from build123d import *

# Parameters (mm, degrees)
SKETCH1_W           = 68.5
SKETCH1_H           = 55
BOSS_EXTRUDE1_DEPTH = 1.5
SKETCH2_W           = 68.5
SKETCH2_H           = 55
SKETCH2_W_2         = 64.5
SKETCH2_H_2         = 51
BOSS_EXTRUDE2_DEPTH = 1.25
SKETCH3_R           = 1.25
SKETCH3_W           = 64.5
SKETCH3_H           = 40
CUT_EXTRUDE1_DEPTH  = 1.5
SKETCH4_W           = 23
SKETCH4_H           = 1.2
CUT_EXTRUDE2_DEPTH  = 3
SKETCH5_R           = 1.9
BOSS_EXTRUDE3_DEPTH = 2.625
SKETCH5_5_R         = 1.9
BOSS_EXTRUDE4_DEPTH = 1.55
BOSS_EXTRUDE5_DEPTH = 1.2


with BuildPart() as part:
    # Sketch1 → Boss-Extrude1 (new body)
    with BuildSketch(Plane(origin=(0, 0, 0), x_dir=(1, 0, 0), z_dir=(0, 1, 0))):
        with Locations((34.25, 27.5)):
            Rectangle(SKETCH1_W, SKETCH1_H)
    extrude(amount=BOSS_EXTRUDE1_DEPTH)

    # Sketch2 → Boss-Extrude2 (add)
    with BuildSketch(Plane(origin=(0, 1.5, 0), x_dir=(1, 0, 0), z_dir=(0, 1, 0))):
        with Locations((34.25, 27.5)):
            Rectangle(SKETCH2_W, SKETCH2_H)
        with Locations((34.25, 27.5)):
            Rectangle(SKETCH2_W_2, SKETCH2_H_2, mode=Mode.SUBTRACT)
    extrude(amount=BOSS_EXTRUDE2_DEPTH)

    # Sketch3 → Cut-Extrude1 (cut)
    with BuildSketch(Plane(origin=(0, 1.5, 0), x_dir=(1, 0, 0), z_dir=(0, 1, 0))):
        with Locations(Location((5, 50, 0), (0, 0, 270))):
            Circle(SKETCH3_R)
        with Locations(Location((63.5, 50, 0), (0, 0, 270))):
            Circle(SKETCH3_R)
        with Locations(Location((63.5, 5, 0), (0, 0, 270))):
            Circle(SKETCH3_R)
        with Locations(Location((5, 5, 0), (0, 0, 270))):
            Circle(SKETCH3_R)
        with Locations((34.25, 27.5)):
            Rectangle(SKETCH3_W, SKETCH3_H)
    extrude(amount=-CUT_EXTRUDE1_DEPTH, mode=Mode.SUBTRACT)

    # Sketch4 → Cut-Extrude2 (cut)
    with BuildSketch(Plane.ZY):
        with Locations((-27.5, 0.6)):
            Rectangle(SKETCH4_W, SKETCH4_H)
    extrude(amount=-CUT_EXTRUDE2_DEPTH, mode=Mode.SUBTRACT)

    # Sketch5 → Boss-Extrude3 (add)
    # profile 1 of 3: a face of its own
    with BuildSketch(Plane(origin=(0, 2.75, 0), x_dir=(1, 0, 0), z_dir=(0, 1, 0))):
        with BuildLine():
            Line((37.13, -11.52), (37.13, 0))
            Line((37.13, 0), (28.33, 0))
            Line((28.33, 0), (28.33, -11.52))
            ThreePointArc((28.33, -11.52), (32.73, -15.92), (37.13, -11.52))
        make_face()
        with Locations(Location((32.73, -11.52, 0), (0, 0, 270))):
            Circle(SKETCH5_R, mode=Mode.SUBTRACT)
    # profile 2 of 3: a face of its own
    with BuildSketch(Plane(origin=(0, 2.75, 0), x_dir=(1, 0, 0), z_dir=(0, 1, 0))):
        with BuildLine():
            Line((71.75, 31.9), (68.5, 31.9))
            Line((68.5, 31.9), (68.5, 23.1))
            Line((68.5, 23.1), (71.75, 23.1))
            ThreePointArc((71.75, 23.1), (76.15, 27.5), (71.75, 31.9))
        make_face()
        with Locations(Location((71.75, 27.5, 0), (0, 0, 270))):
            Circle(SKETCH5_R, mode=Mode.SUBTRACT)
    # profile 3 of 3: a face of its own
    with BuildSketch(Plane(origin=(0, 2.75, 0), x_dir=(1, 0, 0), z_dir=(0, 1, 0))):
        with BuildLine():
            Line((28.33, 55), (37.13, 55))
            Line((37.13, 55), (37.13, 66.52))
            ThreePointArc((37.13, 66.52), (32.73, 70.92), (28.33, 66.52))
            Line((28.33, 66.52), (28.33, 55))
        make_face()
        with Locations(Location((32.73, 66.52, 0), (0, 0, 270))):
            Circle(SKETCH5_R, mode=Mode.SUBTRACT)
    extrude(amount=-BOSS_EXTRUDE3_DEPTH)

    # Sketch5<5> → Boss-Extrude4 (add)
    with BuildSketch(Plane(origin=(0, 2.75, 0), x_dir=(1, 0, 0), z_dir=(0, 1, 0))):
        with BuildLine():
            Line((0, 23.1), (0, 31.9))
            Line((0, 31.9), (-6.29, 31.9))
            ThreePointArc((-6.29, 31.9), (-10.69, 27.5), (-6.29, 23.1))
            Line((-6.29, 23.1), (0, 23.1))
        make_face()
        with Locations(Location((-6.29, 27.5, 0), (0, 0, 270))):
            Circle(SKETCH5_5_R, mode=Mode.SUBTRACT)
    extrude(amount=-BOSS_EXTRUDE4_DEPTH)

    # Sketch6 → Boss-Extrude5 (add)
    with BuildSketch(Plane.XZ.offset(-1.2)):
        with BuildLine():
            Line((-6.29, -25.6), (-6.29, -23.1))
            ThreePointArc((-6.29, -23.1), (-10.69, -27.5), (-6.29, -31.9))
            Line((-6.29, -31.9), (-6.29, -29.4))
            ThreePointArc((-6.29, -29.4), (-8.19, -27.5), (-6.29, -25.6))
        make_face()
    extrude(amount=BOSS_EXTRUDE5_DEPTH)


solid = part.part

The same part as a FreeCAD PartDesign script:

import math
import FreeCAD as App
import Part
import Sketcher

V = App.Vector


def add_polygon(sketch, points):
    """Adds a closed chain of lines whose ends are joined by coincident constraints."""
    first, n = sketch.GeometryCount, len(points)
    for a, b in zip(points, points[1:] + points[:1]):
        sketch.addGeometry(Part.LineSegment(App.Vector(*a, 0), App.Vector(*b, 0)), False)
    for i in range(n):
        sketch.addConstraint(Sketcher.Constraint("Coincident", first + i, 2, first + (i + 1) % n, 1))

doc = App.newDocument("Part")
body = doc.addObject("PartDesign::Body", "Body")

sketch1 = body.newObject("Sketcher::SketchObject", "Sketch")
sketch1.AttachmentSupport = (doc.getObject("XZ_Plane"), [""])
sketch1.MapMode = "FlatFace"
add_polygon(sketch1, [(0, -55), (0, 0), (68, 0), (68, -55)])
sketch1.addConstraint([
    Sketcher.Constraint("Vertical", 0),
    Sketcher.Constraint("Horizontal", 1),
    Sketcher.Constraint("Vertical", 2),
    Sketcher.Constraint("Horizontal", 3),
    Sketcher.Constraint("Coincident", 0, 2, -1, 1),
    Sketcher.Constraint("DistanceY", 0, 1, 0, 2, 55.0),
    Sketcher.Constraint("DistanceX", 1, 1, 1, 2, 68.5),
])
pad1 = body.newObject("PartDesign::Pad", "Pad")
pad1.Profile = sketch1
pad1.Length = 1.5
pad1.Reversed = True

sketch2 = body.newObject("Sketcher::SketchObject", "Sketch001")
sketch2.AttachmentSupport = (doc.getObject("XZ_Plane"), [""])
sketch2.MapMode = "FlatFace"
sketch2.AttachmentOffset = App.Placement(V(0, 0, -1.5), App.Rotation())
add_polygon(sketch2, [(0, -55), (0, 0), (68, 0), (68, -55)])
add_polygon(sketch2, [(66, -2), (2, -2), (2, -53), (66, -53)])
sketch2.addConstraint([
    Sketcher.Constraint("Vertical", 0),
    Sketcher.Constraint("Horizontal", 1),
    Sketcher.Constraint("Vertical", 2),
    Sketcher.Constraint("Horizontal", 3),
    Sketcher.Constraint("Horizontal", 4),
    Sketcher.Constraint("Vertical", 5),
    Sketcher.Constraint("Horizontal", 6),
    Sketcher.Constraint("Vertical", 7),
    Sketcher.Constraint("Coincident", 0, 2, -1, 1),
    Sketcher.Constraint("DistanceY", 0, 1, 0, 2, 55.0),
    Sketcher.Constraint("DistanceY", 5, 2, 5, 1, 51.0),
    Sketcher.Constraint("DistanceX", 1, 1, 1, 2, 68.5),
    Sketcher.Constraint("DistanceX", 4, 2, 4, 1, 64.5),
    Sketcher.Constraint("DistanceX", -1, 1, 4, 2, 2.0),
    Sketcher.Constraint("DistanceY", 4, 2, -1, 1, 2.0),
])
pad2 = body.newObject("PartDesign::Pad", "Pad001")
pad2.Profile = sketch2
pad2.Length = 1.25
pad2.Reversed = True

sketch3 = body.newObject("Sketcher::SketchObject", "Sketch002")
sketch3.AttachmentSupport = (doc.getObject("XZ_Plane"), [""])
sketch3.MapMode = "FlatFace"
sketch3.AttachmentOffset = App.Placement(V(0, 0, -1.5), App.Rotation())
sketch3.addGeometry(Part.Circle(V(5, -50, 0), V(0, 0, 1), 1.2), False)
sketch3.addGeometry(Part.Circle(V(63.5, -50, 0), V(0, 0, 1), 1.2), False)
sketch3.addGeometry(Part.Circle(V(63.5, -5, 0), V(0, 0, 1), 1.2), False)
sketch3.addGeometry(Part.Circle(V(5, -5, 0), V(0, 0, 1), 1.2), False)
add_polygon(sketch3, [(2, -47.5), (2, -7.5), (66.5, -7.5), (66.5, -47.5)])
sketch3.addConstraint([
    Sketcher.Constraint("Vertical", 4),
    Sketcher.Constraint("Horizontal", 5),
    Sketcher.Constraint("Vertical", 6),
    Sketcher.Constraint("Horizontal", 7),
    Sketcher.Constraint("Equal", 0, 1),
    Sketcher.Constraint("Equal", 1, 2),
    Sketcher.Constraint("Equal", 2, 3),
    Sketcher.Constraint("Horizontal", 0, 3, 1, 3),
    Sketcher.Constraint("Horizontal", 2, 3, 3, 3),
    Sketcher.Constraint("Vertical", 1, 3, 2, 3),
    Sketcher.Constraint("Vertical", 0, 3, 3, 3),
    Sketcher.Constraint("Diameter", 0, 2.5),
    Sketcher.Constraint("DistanceY", 4, 1, 4, 2, 40.0),
    Sketcher.Constraint("DistanceX", 5, 1, 5, 2, 64.5),
    Sketcher.Constraint("DistanceX", -1, 1, 0, 3, 5.0),
    Sketcher.Constraint("DistanceY", 0, 3, -1, 1, 50.0),
    Sketcher.Constraint("DistanceY", 2, 3, -1, 1, 5.0),
    Sketcher.Constraint("DistanceX", -1, 1, 4, 2, 2.0),
    Sketcher.Constraint("DistanceX", 2, 3, 5, 2, 3.0),
    Sketcher.Constraint("DistanceY", 4, 2, -1, 1, 7.5),
])
pocket1 = body.newObject("PartDesign::Pocket", "Pocket")
pocket1.Profile = sketch3
pocket1.Length = 1.5
pocket1.Reversed = True

sketch4 = body.newObject("Sketcher::SketchObject", "Sketch003")
sketch4.AttachmentSupport = (doc.getObject("YZ_Plane"), [""])
sketch4.MapMode = "FlatFace"
add_polygon(sketch4, [(1.2, -39), (0, -39), (0, -16), (1.2, -16)])
sketch4.addConstraint([
    Sketcher.Constraint("Horizontal", 0),
    Sketcher.Constraint("Vertical", 1),
    Sketcher.Constraint("Horizontal", 2),
    Sketcher.Constraint("Vertical", 3),
    Sketcher.Constraint("PointOnObject", 0, 2, -2),
    Sketcher.Constraint("DistanceY", 1, 1, 1, 2, 23.0),
    Sketcher.Constraint("DistanceX", 0, 2, 0, 1, 1.2),
    Sketcher.Constraint("DistanceY", 0, 2, -1, 1, 39.0),
])
pocket2 = body.newObject("PartDesign::Pocket", "Pocket001")
pocket2.Profile = sketch4
pocket2.Length = 3
pocket2.Reversed = True

sketch5 = body.newObject("Sketcher::SketchObject", "Sketch004")
sketch5.AttachmentSupport = (doc.getObject("XZ_Plane"), [""])
sketch5.MapMode = "FlatFace"
sketch5.AttachmentOffset = App.Placement(V(0, 0, -2.75), App.Rotation())
sketch5.addGeometry([
    Part.LineSegment(V(37.1, 11.5, 0), V(37.1, 0, 0)),
    Part.LineSegment(V(37.1, 0, 0), V(28.3, 0, 0)),
    Part.LineSegment(V(28.3, 0, 0), V(28.3, 11.5, 0)),
    Part.ArcOfCircle(Part.Circle(V(32.7, 11.5, 0), V(0, 0, 1), 4.4), math.radians(0), math.radians(180)),
    Part.Circle(V(32.7, 11.5, 0), V(0, 0, 1), 1.9),
    Part.LineSegment(V(71.8, -31.9, 0), V(68.5, -31.9, 0)),
    Part.LineSegment(V(68.5, -31.9, 0), V(68.5, -23.1, 0)),
    Part.LineSegment(V(68.5, -23.1, 0), V(71.8, -23.1, 0)),
    Part.ArcOfCircle(Part.Circle(V(71.8, -27.5, 0), V(0, 0, 1), 4.4), math.radians(-90), math.radians(90)),
    Part.Circle(V(71.8, -27.5, 0), V(0, 0, 1), 1.9),
    Part.LineSegment(V(28.3, -55, 0), V(37.1, -55, 0)),
    Part.LineSegment(V(37.1, -55, 0), V(37.1, -66.5, 0)),
    Part.ArcOfCircle(Part.Circle(V(32.7, -66.5, 0), V(0, 0, 1), 4.4), math.radians(180), math.radians(360)),
    Part.LineSegment(V(28.3, -66.5, 0), V(28.3, -55, 0)),
    Part.Circle(V(32.7, -66.5, 0), V(0, 0, 1), 1.9),
], False)
sketch5.addConstraint([
    Sketcher.Constraint("Coincident", 0, 2, 1, 1),
    Sketcher.Constraint("Coincident", 1, 2, 2, 1),
    Sketcher.Constraint("Tangent", 2, 2, 3, 2),
    Sketcher.Constraint("Tangent", 3, 1, 0, 1),
    Sketcher.Constraint("Coincident", 5, 2, 6, 1),
    Sketcher.Constraint("Coincident", 6, 2, 7, 1),
    Sketcher.Constraint("Tangent", 7, 2, 8, 2),
    Sketcher.Constraint("Tangent", 8, 1, 5, 1),
    Sketcher.Constraint("Coincident", 10, 2, 11, 1),
    Sketcher.Constraint("Tangent", 11, 2, 12, 2),
    Sketcher.Constraint("Tangent", 12, 1, 13, 1),
    Sketcher.Constraint("Coincident", 13, 2, 10, 1),
    Sketcher.Constraint("Vertical", 0),
    Sketcher.Constraint("Horizontal", 1),
    Sketcher.Constraint("Vertical", 2),
    Sketcher.Constraint("Horizontal", 5),
    Sketcher.Constraint("Vertical", 6),
    Sketcher.Constraint("Horizontal", 7),
    Sketcher.Constraint("Horizontal", 10),
    Sketcher.Constraint("Vertical", 11),
    Sketcher.Constraint("Vertical", 13),
    Sketcher.Constraint("Coincident", 4, 3, 3, 3),
    Sketcher.Constraint("Coincident", 9, 3, 8, 3),
    Sketcher.Constraint("Coincident", 14, 3, 12, 3),
    Sketcher.Constraint("Equal", 3, 8),
    Sketcher.Constraint("Equal", 4, 9),
    Sketcher.Constraint("Equal", 8, 12),
    Sketcher.Constraint("Equal", 9, 14),
    Sketcher.Constraint("PointOnObject", 0, 2, -1),
    Sketcher.Constraint("Vertical", 4, 3, 12, 3),
    Sketcher.Constraint("Equal", 2, 11),
    Sketcher.Constraint("Diameter", 4, 3.8),
    Sketcher.Constraint("Radius", 3, 4.4),
    Sketcher.Constraint("DistanceY", 10, 2, -1, 1, 55.0),
    Sketcher.Constraint("DistanceX", 5, 2, 5, 1, 3.25),
    Sketcher.Constraint("DistanceY", 0, 2, 0, 1, 11.52),
    Sketcher.Constraint("DistanceY", 8, 3, -1, 1, 27.5),
    Sketcher.Constraint("DistanceX", -1, 1, 5, 2, 68.5),
    Sketcher.Constraint("DistanceX", -1, 1, 3, 3, 32.73),
])
pad3 = body.newObject("PartDesign::Pad", "Pad002")
pad3.Profile = sketch5
pad3.Length = 2.625

sketch6 = body.newObject("Sketcher::SketchObject", "Sketch005")
sketch6.AttachmentSupport = (doc.getObject("XZ_Plane"), [""])
sketch6.MapMode = "FlatFace"
sketch6.AttachmentOffset = App.Placement(V(0, 0, -2.75), App.Rotation())
sketch6.addGeometry([
    Part.LineSegment(V(0, -23.1, 0), V(0, -31.9, 0)),
    Part.LineSegment(V(0, -31.9, 0), V(-6.3, -31.9, 0)),
    Part.ArcOfCircle(Part.Circle(V(-6.3, -27.5, 0), V(0, 0, 1), 4.4), math.radians(90), math.radians(270)),
    Part.LineSegment(V(-6.3, -23.1, 0), V(0, -23.1, 0)),
    Part.Circle(V(-6.3, -27.5, 0), V(0, 0, 1), 1.9),
], False)
sketch6.addConstraint([
    Sketcher.Constraint("Coincident", 0, 2, 1, 1),
    Sketcher.Constraint("Tangent", 1, 2, 2, 2),
    Sketcher.Constraint("Tangent", 2, 1, 3, 1),
    Sketcher.Constraint("Coincident", 3, 2, 0, 1),
    Sketcher.Constraint("Vertical", 0),
    Sketcher.Constraint("Horizontal", 1),
    Sketcher.Constraint("Horizontal", 3),
    Sketcher.Constraint("Coincident", 4, 3, 2, 3),
    Sketcher.Constraint("PointOnObject", 0, 2, -2),
    Sketcher.Constraint("Diameter", 4, 3.8),
    Sketcher.Constraint("Radius", 2, 4.4),
    Sketcher.Constraint("DistanceX", 1, 2, 1, 1, 6.29),
    Sketcher.Constraint("DistanceY", 2, 3, -1, 1, 27.5),
])
pad4 = body.newObject("PartDesign::Pad", "Pad003")
pad4.Profile = sketch6
pad4.Length = 1.55

sketch7 = body.newObject("Sketcher::SketchObject", "Sketch006")
sketch7.AttachmentSupport = (doc.getObject("XZ_Plane"), [""])
sketch7.MapMode = "FlatFace"
sketch7.AttachmentOffset = App.Placement(V(0, 0, -1.2), App.Rotation())
sketch7.addGeometry([
    Part.LineSegment(V(-6.3, -25.6, 0), V(-6.3, -23.1, 0)),
    Part.ArcOfCircle(Part.Circle(V(-6.3, -27.5, 0), V(0, 0, 1), 4.4), math.radians(90), math.radians(270)),
    Part.LineSegment(V(-6.3, -31.9, 0), V(-6.3, -29.4, 0)),
    Part.ArcOfCircle(Part.Circle(V(-6.3, -27.5, 0), V(0, 0, 1), 1.9), math.radians(90), math.radians(270)),
], False)
sketch7.addConstraint([
    Sketcher.Constraint("Coincident", 0, 2, 1, 1),
    Sketcher.Constraint("Coincident", 1, 2, 2, 1),
    Sketcher.Constraint("Coincident", 2, 2, 3, 2),
    Sketcher.Constraint("Coincident", 3, 1, 0, 1),
    Sketcher.Constraint("Vertical", 0),
    Sketcher.Constraint("Vertical", 2),
    Sketcher.Constraint("Coincident", 3, 3, 1, 3),
    Sketcher.Constraint("Vertical", 3, 3, 0, 2),
    Sketcher.Constraint("Vertical", 0, 2, 1, 2),
    Sketcher.Constraint("Radius", 1, 4.4),
    Sketcher.Constraint("Radius", 3, 1.9),
    Sketcher.Constraint("DistanceY", 1, 3, -1, 1, 27.5),
    Sketcher.Constraint("DistanceX", 1, 3, -1, 1, 6.29),
])
pad5 = body.newObject("PartDesign::Pad", "Pad004")
pad5.Profile = sketch7
pad5.Length = 1.2

doc.recompute()
